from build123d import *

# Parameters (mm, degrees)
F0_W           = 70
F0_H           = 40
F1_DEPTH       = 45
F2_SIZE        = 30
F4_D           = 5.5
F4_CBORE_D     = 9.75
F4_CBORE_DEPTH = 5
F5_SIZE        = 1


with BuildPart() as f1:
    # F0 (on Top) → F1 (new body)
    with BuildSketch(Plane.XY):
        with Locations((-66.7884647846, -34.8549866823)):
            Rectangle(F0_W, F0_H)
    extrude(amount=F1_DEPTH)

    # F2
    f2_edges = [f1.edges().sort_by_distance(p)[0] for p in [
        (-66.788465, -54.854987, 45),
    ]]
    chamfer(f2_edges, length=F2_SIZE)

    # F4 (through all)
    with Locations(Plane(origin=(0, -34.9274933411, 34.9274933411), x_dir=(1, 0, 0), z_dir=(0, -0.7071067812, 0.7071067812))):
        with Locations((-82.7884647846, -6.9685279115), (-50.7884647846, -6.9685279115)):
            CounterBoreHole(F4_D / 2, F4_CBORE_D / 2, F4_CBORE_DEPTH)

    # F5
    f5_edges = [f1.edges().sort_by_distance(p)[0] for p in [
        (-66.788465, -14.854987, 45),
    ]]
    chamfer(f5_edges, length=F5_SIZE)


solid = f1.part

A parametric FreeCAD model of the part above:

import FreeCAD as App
import Part
import Sketcher
Q = App.Units.Quantity


def edges_at(feature, points):
    """Names of the edges that pass closest to the given points."""
    edges = feature.Shape.Edges
    near = lambda p: min(range(len(edges)), key=lambda i: edges[i].distToShape(Part.Vertex(*p))[0])
    return sorted({f"Edge{near(p) + 1}" for p in points})

doc = App.newDocument("Part")
body = doc.addObject("PartDesign::Body", "Body")

# Sketch on XY plane
sketch1 = body.newObject("Sketcher::SketchObject", "Sketch")
sketch1.AttachmentSupport = (doc.getObject("XY_Plane"), [""])
sketch1.MapMode = "FlatFace"
sketch1.addGeometry([
    Part.LineSegment(App.Vector(-102, -15, 0), App.Vector(-102, -55, 0)),
    Part.LineSegment(App.Vector(-102, -55, 0), App.Vector(-32, -55, 0)),
    Part.LineSegment(App.Vector(-32, -55, 0), App.Vector(-32, -15, 0)),
    Part.LineSegment(App.Vector(-32, -15, 0), App.Vector(-102, -15, 0)),
], False)
sketch1.addConstraint([
    Sketcher.Constraint("Coincident", 0, 2, 1, 1),
    Sketcher.Constraint("Coincident", 1, 2, 2, 1),
    Sketcher.Constraint("Coincident", 2, 2, 3, 1),
    Sketcher.Constraint("Coincident", 3, 2, 0, 1),
    Sketcher.Constraint("Vertical", 0),
    Sketcher.Constraint("Horizontal", 1),
    Sketcher.Constraint("Vertical", 2),
    Sketcher.Constraint("Horizontal", 3),
    Sketcher.Constraint("DistanceX", 1, 1, 1, 2, Q("70 mm")),
    Sketcher.Constraint("DistanceY", 0, 2, 0, 1, Q("40 mm")),
    Sketcher.Constraint("DistanceX", 0, 2, -1, 1, Q("101.788465 mm")),
    Sketcher.Constraint("DistanceY", 0, 2, -1, 1, Q("54.854987 mm")),
])
pad1 = body.newObject("PartDesign::Pad", "Pad")
pad1.Profile = sketch1
pad1.Length = 45
doc.recompute()

chamfer = body.newObject("PartDesign::Chamfer", "Chamfer")
chamfer.Base = (pad1, edges_at(pad1, [(-66.788, -54.855, 45)]))
chamfer.Size = 30

# Sketch on an angled plane
sketch2 = body.newObject("Sketcher::SketchObject", "Sketch001")
sketch2.Placement = App.Placement(App.Vector(0, -34.927493, 34.927493), App.Rotation(App.Vector(1, 0, 0), App.Vector(0, 0.707106781, 0.707106781), App.Vector(0, -0.707106781, 0.707106781), "ZXY"))
sketch2.addGeometry([
    Part.Circle(App.Vector(-82.8, -7, 0), App.Vector(0, 0, 1), 2.8),
    Part.Circle(App.Vector(-50.8, -7, 0), App.Vector(0, 0, 1), 2.8),
], False)
sketch2.addConstraint([
    Sketcher.Constraint("Equal", 0, 1),
    Sketcher.Constraint("Horizontal", 0, 3, 1, 3),
    Sketcher.Constraint("Diameter", 0, Q("5.5 mm")),
    Sketcher.Constraint("DistanceX", 0, 3, 1, 3, Q("32 mm")),
    Sketcher.Constraint("DistanceX", 0, 3, -1, 1, Q("82.788465 mm")),
    Sketcher.Constraint("DistanceY", 0, 3, -1, 1, Q("6.968528 mm")),
])
doc.recompute()
hole = body.newObject("PartDesign::Hole", "Hole")
hole.Profile = sketch2
hole.ThreadType = "None"
hole.Diameter = 5.5
hole.DepthType = "ThroughAll"
hole.HoleCutType = "Counterbore"
hole.HoleCutDiameter = 9.75
hole.HoleCutDepth = 5
doc.recompute()

chamfer2 = body.newObject("PartDesign::Chamfer", "Chamfer001")
chamfer2.Base = (hole, edges_at(hole, [(-66.788, -14.855, 45)]))
chamfer2.Size = 1

doc.recompute()
